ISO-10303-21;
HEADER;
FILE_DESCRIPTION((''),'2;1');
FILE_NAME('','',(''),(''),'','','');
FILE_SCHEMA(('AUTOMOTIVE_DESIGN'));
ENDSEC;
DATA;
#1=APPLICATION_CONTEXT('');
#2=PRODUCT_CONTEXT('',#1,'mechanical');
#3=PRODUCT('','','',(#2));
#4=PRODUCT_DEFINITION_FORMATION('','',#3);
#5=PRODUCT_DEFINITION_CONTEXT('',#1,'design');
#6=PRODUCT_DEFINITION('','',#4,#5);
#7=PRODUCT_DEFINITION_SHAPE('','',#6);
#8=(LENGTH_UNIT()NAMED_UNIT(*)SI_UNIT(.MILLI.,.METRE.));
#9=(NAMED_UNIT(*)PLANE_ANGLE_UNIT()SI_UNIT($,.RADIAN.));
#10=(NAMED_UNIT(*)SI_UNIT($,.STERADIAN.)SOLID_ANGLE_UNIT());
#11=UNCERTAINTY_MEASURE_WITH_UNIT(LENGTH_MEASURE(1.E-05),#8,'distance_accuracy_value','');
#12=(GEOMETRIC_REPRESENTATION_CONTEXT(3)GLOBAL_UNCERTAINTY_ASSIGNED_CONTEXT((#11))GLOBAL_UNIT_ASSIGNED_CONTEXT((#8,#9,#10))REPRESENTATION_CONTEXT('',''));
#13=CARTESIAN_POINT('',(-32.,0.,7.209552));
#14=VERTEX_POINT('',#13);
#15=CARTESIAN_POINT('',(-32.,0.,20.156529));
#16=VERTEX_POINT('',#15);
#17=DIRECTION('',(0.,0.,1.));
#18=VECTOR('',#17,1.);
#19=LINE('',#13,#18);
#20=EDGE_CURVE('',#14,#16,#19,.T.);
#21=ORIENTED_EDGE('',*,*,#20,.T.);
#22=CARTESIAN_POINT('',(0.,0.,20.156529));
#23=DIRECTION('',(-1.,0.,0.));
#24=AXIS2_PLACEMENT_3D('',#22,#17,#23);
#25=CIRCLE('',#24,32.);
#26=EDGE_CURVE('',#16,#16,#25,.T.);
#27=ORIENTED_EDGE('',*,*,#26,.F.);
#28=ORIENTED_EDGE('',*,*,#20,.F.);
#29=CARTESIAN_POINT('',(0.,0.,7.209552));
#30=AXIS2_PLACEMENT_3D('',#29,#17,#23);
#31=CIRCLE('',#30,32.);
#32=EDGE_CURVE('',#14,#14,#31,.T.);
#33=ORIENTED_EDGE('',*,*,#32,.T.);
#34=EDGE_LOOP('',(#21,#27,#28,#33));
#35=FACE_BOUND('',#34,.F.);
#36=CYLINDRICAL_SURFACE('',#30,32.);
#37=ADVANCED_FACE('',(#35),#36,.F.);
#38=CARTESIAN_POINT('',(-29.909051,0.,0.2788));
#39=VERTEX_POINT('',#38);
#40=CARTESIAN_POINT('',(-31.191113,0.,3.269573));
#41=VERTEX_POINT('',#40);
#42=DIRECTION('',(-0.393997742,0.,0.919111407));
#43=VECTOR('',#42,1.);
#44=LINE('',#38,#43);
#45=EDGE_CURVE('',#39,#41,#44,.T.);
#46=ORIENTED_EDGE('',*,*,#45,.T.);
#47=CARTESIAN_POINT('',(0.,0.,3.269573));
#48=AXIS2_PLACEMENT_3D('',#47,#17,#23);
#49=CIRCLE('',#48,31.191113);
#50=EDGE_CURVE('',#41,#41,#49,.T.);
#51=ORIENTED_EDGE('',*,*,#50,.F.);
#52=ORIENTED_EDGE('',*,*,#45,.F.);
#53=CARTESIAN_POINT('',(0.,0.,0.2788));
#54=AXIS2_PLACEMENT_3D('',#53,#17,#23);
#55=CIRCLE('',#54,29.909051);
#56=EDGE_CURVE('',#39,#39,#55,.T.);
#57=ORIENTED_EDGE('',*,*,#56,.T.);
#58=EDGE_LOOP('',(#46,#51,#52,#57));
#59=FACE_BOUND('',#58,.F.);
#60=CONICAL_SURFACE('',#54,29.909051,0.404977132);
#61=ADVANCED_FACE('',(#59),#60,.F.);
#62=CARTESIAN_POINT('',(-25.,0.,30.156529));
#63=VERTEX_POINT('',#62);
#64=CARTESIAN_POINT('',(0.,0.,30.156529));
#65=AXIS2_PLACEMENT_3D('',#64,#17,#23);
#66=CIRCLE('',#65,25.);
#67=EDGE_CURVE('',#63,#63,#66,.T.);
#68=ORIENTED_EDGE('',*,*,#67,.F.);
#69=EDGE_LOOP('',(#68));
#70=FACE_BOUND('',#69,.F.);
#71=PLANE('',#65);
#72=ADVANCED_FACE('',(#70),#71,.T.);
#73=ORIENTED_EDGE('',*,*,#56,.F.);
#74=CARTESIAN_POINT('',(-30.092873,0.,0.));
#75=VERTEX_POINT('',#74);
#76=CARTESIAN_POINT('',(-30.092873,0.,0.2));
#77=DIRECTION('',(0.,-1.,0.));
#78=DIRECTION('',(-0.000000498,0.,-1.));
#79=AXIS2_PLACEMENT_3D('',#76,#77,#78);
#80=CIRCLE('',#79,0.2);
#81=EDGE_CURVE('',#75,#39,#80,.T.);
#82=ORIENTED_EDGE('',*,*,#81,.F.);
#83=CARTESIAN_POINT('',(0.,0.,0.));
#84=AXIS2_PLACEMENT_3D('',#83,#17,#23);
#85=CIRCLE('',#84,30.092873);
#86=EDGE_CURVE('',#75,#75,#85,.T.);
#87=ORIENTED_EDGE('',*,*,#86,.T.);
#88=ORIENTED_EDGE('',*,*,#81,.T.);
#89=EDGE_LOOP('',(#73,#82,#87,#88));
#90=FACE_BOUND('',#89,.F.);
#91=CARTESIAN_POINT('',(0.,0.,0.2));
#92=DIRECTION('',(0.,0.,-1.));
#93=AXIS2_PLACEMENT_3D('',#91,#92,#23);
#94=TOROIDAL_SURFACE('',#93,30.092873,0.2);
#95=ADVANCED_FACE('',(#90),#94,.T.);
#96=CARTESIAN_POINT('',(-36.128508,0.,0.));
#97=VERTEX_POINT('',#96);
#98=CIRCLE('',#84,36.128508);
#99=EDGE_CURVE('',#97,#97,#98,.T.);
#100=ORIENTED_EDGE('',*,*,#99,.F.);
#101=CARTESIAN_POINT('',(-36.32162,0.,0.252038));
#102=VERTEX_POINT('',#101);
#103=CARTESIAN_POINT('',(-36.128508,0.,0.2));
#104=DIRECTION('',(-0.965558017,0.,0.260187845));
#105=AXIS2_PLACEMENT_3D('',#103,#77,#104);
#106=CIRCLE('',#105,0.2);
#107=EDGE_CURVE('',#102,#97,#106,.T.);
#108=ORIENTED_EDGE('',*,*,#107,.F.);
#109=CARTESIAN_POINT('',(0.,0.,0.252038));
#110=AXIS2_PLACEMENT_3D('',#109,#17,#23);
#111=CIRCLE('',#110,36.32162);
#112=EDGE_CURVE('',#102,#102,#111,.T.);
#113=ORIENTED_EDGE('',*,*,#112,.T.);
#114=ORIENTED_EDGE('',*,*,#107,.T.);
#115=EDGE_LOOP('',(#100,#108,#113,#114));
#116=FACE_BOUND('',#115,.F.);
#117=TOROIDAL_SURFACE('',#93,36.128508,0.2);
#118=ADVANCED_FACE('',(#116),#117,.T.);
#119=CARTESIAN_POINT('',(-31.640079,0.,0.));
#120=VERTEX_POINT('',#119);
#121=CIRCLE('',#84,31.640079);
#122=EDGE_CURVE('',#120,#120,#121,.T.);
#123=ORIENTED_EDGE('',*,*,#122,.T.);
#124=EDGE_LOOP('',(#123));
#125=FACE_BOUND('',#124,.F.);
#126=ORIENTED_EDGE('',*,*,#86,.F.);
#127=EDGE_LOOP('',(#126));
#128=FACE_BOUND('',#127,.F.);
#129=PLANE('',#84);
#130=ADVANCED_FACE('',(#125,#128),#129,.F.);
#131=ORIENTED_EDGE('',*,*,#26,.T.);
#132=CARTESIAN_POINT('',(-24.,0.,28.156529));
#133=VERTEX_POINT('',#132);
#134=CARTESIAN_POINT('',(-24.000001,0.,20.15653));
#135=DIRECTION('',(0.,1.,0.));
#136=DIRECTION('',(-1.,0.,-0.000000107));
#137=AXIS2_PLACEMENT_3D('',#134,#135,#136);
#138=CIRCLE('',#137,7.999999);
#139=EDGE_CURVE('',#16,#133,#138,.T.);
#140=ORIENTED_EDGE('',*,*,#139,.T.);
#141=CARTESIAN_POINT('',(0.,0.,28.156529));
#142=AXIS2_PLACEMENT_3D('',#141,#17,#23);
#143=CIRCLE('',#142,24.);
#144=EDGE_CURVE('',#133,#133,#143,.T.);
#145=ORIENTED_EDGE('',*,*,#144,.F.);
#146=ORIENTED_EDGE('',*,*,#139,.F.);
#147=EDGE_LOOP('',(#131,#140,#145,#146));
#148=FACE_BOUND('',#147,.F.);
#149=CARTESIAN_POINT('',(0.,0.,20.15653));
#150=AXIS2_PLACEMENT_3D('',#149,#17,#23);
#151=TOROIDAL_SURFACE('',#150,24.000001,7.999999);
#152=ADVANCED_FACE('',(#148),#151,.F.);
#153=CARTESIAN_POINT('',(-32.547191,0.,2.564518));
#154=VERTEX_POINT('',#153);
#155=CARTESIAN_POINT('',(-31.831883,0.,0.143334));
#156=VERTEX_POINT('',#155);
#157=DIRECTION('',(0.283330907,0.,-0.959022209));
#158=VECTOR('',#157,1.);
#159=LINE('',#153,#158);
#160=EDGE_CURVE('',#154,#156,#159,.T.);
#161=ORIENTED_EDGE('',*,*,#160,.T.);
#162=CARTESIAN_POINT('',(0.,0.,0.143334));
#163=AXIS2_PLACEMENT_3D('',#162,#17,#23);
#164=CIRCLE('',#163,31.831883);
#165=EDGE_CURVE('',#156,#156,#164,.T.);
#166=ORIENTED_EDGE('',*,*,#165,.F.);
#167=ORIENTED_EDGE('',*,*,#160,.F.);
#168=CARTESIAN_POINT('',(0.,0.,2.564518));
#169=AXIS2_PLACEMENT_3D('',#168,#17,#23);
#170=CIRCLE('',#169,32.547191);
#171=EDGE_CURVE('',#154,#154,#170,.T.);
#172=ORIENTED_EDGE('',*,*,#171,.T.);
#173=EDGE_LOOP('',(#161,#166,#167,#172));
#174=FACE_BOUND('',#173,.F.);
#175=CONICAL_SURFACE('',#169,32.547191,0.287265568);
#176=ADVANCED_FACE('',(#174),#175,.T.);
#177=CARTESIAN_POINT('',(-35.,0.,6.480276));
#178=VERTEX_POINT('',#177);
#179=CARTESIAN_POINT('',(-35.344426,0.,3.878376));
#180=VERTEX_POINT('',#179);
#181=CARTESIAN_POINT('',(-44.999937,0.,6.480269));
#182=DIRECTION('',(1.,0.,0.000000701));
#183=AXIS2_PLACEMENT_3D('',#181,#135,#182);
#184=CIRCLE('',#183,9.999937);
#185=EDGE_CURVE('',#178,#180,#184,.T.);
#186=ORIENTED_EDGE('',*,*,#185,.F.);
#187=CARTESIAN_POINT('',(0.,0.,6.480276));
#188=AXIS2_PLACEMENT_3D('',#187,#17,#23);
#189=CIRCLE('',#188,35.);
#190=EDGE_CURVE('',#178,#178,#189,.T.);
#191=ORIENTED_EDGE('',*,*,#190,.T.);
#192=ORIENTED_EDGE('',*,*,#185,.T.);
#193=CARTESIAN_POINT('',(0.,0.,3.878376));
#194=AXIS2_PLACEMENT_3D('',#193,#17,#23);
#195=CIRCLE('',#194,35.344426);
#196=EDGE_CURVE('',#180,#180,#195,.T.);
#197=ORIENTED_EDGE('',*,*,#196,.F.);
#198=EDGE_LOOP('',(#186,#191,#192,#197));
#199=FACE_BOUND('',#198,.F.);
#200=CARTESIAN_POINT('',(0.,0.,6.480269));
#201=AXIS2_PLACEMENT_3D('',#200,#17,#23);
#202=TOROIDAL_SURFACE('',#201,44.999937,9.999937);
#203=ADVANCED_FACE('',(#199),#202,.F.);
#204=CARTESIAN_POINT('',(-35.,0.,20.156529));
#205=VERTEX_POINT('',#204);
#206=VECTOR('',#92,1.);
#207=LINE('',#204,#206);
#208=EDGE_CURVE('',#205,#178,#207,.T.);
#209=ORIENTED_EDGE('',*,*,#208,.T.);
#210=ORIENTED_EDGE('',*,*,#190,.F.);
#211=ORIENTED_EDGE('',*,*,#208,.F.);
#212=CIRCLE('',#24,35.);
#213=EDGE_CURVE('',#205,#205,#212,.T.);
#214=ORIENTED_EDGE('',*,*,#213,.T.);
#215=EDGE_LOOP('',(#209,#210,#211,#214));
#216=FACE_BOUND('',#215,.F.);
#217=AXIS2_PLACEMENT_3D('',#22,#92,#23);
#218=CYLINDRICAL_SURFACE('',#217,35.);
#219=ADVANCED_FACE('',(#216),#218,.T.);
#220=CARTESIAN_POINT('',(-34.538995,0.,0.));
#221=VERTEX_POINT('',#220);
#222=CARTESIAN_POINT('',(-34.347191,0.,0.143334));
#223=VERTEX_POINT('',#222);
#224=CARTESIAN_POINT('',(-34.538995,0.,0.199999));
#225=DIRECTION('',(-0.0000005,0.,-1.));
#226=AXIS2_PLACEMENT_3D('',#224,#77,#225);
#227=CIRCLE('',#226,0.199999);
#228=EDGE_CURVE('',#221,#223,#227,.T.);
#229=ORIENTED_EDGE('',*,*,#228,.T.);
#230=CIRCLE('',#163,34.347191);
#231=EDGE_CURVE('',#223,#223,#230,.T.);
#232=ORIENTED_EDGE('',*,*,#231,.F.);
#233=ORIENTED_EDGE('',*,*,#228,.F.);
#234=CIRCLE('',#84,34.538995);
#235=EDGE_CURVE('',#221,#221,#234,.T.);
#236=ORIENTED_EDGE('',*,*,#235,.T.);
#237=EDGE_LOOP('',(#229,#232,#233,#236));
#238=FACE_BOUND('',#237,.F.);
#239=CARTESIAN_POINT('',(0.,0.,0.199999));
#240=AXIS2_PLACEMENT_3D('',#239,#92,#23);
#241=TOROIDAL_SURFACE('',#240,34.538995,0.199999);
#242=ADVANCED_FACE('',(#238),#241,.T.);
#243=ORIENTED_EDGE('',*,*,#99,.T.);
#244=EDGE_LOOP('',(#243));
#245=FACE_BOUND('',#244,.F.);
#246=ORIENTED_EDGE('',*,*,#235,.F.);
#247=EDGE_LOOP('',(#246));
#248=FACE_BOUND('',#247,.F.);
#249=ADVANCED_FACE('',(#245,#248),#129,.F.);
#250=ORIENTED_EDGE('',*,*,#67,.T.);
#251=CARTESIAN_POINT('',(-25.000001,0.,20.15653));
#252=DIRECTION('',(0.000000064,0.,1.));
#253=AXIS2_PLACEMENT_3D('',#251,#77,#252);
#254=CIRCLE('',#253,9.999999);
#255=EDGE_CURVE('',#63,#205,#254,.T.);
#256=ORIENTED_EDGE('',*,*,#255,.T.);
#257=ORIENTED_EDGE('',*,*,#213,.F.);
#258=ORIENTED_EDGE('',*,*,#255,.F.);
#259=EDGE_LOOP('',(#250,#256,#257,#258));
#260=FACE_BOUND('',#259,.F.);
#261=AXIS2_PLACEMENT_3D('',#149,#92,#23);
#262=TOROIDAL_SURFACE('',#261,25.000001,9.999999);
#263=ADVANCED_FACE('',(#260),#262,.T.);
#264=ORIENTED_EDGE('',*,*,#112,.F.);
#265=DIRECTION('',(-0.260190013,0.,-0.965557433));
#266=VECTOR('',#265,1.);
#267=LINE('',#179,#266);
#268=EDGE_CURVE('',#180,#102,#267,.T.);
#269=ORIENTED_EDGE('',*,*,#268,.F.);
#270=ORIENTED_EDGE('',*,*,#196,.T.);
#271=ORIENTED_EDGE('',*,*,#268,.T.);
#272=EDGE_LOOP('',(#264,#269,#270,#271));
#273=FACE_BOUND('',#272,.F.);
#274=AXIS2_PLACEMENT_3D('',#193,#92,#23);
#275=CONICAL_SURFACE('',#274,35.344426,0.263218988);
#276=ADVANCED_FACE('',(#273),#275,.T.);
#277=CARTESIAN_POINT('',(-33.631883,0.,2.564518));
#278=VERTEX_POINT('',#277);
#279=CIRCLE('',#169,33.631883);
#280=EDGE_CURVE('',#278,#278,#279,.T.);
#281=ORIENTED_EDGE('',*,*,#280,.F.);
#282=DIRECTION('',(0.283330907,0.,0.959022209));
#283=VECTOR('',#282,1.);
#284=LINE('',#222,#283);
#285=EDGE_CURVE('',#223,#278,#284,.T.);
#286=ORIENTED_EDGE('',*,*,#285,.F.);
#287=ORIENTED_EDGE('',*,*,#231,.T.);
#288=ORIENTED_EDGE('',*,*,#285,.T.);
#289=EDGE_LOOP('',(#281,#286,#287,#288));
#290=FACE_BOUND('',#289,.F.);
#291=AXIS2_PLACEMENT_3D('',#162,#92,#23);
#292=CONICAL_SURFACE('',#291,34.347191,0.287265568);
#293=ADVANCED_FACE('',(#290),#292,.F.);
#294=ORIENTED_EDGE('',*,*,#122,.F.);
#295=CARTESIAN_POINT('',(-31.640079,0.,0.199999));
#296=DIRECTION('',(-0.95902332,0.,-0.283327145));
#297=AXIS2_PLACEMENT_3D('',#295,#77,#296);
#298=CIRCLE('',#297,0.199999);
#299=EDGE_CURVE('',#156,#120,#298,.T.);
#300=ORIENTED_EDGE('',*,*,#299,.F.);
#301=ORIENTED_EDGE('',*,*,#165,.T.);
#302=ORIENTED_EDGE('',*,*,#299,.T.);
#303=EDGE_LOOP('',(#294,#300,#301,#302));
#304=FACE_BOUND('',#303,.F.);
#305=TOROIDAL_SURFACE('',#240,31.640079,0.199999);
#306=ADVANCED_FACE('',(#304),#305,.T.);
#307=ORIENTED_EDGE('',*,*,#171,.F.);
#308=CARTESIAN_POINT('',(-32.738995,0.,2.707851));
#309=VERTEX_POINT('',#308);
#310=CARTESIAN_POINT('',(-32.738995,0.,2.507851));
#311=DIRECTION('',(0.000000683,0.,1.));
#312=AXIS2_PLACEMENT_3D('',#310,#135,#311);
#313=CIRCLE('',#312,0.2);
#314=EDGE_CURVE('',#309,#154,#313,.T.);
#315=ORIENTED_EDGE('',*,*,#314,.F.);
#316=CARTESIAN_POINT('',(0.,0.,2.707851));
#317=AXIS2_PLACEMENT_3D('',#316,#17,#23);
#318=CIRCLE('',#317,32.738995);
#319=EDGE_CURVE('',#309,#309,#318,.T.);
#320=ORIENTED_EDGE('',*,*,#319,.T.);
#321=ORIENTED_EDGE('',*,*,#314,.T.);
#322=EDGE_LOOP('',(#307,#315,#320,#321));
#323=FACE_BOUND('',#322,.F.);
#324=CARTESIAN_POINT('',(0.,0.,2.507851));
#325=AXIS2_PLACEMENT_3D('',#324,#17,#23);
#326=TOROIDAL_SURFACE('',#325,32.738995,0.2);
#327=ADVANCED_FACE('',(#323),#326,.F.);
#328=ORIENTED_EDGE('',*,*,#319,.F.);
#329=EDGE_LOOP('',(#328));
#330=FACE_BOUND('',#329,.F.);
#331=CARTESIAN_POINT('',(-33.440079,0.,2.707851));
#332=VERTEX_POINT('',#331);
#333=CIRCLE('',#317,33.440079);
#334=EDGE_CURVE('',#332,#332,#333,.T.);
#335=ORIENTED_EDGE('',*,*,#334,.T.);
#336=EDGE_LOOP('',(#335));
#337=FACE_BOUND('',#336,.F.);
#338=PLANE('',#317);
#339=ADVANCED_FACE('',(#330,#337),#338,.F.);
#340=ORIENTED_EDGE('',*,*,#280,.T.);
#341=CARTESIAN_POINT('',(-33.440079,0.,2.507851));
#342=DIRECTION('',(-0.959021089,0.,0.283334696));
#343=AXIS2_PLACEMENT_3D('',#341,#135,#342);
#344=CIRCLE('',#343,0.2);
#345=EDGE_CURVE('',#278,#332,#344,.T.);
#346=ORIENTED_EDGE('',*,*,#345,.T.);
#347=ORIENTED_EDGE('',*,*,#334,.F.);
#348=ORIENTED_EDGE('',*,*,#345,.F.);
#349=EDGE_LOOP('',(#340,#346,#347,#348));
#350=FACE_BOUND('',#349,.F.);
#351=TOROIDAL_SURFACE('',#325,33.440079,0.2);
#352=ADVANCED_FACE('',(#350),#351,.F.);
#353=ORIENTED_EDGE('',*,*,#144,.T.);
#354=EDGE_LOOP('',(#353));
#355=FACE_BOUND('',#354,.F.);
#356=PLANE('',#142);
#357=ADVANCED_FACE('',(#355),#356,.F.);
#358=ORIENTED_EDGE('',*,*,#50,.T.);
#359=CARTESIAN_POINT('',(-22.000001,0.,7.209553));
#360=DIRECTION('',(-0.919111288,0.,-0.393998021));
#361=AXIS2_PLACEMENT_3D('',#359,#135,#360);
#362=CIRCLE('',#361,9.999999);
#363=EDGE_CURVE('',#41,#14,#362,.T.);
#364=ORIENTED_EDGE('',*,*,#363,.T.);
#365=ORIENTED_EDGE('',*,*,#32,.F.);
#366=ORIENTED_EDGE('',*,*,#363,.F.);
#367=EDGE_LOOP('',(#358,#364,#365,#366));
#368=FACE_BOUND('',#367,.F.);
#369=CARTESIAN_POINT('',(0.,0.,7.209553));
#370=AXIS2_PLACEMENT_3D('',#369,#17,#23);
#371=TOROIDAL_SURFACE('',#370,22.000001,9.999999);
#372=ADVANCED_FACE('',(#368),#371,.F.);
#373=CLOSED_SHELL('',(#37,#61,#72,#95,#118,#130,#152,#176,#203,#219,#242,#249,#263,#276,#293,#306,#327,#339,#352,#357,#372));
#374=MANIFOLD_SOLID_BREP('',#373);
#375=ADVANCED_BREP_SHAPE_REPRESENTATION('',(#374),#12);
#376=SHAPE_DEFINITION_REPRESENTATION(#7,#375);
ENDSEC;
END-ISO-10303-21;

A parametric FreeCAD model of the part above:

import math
import FreeCAD as App
import Part
import Sketcher

V = App.Vector
Q = App.Units.Quantity

doc = App.newDocument("Part")
params = doc.addObject("Spreadsheet::Sheet", "Params")
for row, (alias, value) in enumerate([
    ("sketch1_radius", "9.999999 mm"),
    ("sketch1_radius2", "9.999999 mm"),
    ("sketch1_radius3", "7.999999 mm"),
    ("sketch1_radius4", "0.2 mm"),
    ("sketch1_radius5", "0.199999 mm"),
    ("revolution_angle", "360 deg"),
], start=1):
    params.set(f"A{row}", alias)
    params.set(f"B{row}", "=" + value)
    params.setAlias(f"B{row}", alias)

body = doc.addObject("PartDesign::Body", "Body")

# Sketch on XZ plane
sketch1 = doc.addObject("Sketcher::SketchObject", "Sketch")
body.addObject(sketch1)
sketch1.AttachmentSupport = (doc.XZ_Plane, [""])
sketch1.MapMode = "FlatFace"
sketch1.addGeometry([
    Part.LineSegment(V(-24, 28.156529, 0), V(0, 28.156529, 0)),  # 0
    Part.LineSegment(V(0, 28.156529, 0), V(0, 30.156529, 0)),  # 1
    Part.LineSegment(V(0, 30.156529, 0), V(-25, 30.156529, 0)),  # 2
    Part.ArcOfCircle(Part.Circle(V(-25.000001, 20.15653, 0), V(0, 0, 1), 9.999999), math.radians(89.999996), math.radians(180.000004)),  # 3
    Part.LineSegment(V(-35, 20.156529, 0), V(-35, 6.480276, 0)),  # 4
    Part.ArcOfCircle(Part.Circle(V(-44.999937, 6.480269, 0), V(0, 0, 1), 9.999937), math.radians(-15.081393), math.radians(0.00004)),  # 5
    Part.LineSegment(V(-35.344426, 3.878376, 0), V(-36.32162, 0.252038, 0)),  # 6
    Part.ArcOfCircle(Part.Circle(V(-36.128508, 0.2, 0), V(0, 0, 1), 0.2), math.radians(164.918792), math.radians(270.000019)),  # 7
    Part.LineSegment(V(-36.128508, 0, 0), V(-34.538995, 0, 0)),  # 8
    Part.ArcOfCircle(Part.Circle(V(-34.538995, 0.199999, 0), V(0, 0, 1), 0.199999), math.radians(-90.000029), math.radians(-16.45888)),  # 9
    Part.LineSegment(V(-34.347191, 0.143334, 0), V(-33.631883, 2.564518, 0)),  # 10
    Part.ArcOfCircle(Part.Circle(V(-33.440079, 2.507851, 0), V(0, 0, 1), 0.2), math.radians(90.000039), math.radians(163.540669)),  # 11
    Part.LineSegment(V(-33.440079, 2.707851, 0), V(-32.738995, 2.707851, 0)),  # 12
    Part.ArcOfCircle(Part.Circle(V(-32.738995, 2.507851, 0), V(0, 0, 1), 0.2), math.radians(16.459331), math.radians(89.999961)),  # 13
    Part.LineSegment(V(-32.547191, 2.564518, 0), V(-31.831883, 0.143334, 0)),  # 14
    Part.ArcOfCircle(Part.Circle(V(-31.640079, 0.199999, 0), V(0, 0, 1), 0.199999), math.radians(-163.54112), math.radians(-89.999971)),  # 15
    Part.LineSegment(V(-31.640079, 0, 0), V(-30.092873, 0, 0)),  # 16
    Part.ArcOfCircle(Part.Circle(V(-30.092873, 0.2, 0), V(0, 0, 1), 0.2), math.radians(-90.000029), math.radians(23.203675)),  # 17
    Part.LineSegment(V(-29.909051, 0.2788, 0), V(-31.191113, 3.269573, 0)),  # 18
    Part.ArcOfCircle(Part.Circle(V(-22.000001, 7.209553, 0), V(0, 0, 1), 9.999999), math.radians(-179.999996), math.radians(-156.796502)),  # 19
    Part.LineSegment(V(-32, 7.209552, 0), V(-32, 20.156529, 0)),  # 20
    Part.ArcOfCircle(Part.Circle(V(-24.000001, 20.15653, 0), V(0, 0, 1), 7.999999), math.radians(89.999994), math.radians(180.000006)),  # 21
], False)
sketch1.addConstraint([
    Sketcher.Constraint("Coincident", 0, 2, 1, 1),
    Sketcher.Constraint("Coincident", 1, 2, 2, 1),
    Sketcher.Constraint("Coincident", 2, 2, 3, 1),
    Sketcher.Constraint("Coincident", 3, 2, 4, 1),
    Sketcher.Constraint("Coincident", 4, 2, 5, 2),
    Sketcher.Constraint("Coincident", 5, 1, 6, 1),
    Sketcher.Constraint("Coincident", 6, 2, 7, 1),
    Sketcher.Constraint("Coincident", 7, 2, 8, 1),
    Sketcher.Constraint("Coincident", 8, 2, 9, 1),
    Sketcher.Constraint("Coincident", 9, 2, 10, 1),
    Sketcher.Constraint("Coincident", 10, 2, 11, 2),
    Sketcher.Constraint("Coincident", 11, 1, 12, 1),
    Sketcher.Constraint("Coincident", 12, 2, 13, 2),
    Sketcher.Constraint("Coincident", 13, 1, 14, 1),
    Sketcher.Constraint("Coincident", 14, 2, 15, 1),
    Sketcher.Constraint("Coincident", 15, 2, 16, 1),
    Sketcher.Constraint("Coincident", 16, 2, 17, 1),
    Sketcher.Constraint("Coincident", 17, 2, 18, 1),
    Sketcher.Constraint("Coincident", 18, 2, 19, 2),
    Sketcher.Constraint("Coincident", 19, 1, 20, 1),
    Sketcher.Constraint("Coincident", 20, 2, 21, 2),
    Sketcher.Constraint("Coincident", 21, 1, 0, 1),
    Sketcher.Constraint("Horizontal", 0),
    Sketcher.Constraint("Vertical", 1),
    Sketcher.Constraint("Horizontal", 2),
    Sketcher.Constraint("Vertical", 4),
    Sketcher.Constraint("Horizontal", 8),
    Sketcher.Constraint("Horizontal", 12),
    Sketcher.Constraint("Horizontal", 16),
    Sketcher.Constraint("Vertical", 20),
    Sketcher.Constraint("PointOnObject", 0, 2, -2),
    Sketcher.Constraint("PointOnObject", 7, 2, -1),
    Sketcher.Constraint("PointOnObject", 15, 2, -1),
    Sketcher.Constraint("Radius", 3, Q("9.999999 mm")),
    Sketcher.Constraint("Radius", 19, Q("9.999999 mm")),
    Sketcher.Constraint("Radius", 21, Q("7.999999 mm")),
    Sketcher.Constraint("Radius", 7, Q("0.2 mm")),
    Sketcher.Constraint("Radius", 9, Q("0.199999 mm")),
    Sketcher.Constraint("Radius", 11, Q("0.2 mm")),
    Sketcher.Constraint("Radius", 13, Q("0.2 mm")),
    Sketcher.Constraint("Radius", 15, Q("0.199999 mm")),
    Sketcher.Constraint("Radius", 17, Q("0.2 mm")),
    Sketcher.Constraint("DistanceX", 0, 1, 0, 2, Q("24 mm")),
    Sketcher.Constraint("DistanceX", 2, 2, 2, 1, Q("25 mm")),
    Sketcher.Constraint("DistanceY", 1, 1, 1, 2, Q("2 mm")),
    Sketcher.Constraint("DistanceX", 3, 3, -1, 1, Q("25.000001 mm")),
    Sketcher.Constraint("DistanceX", 19, 3, -1, 1, Q("22.000001 mm")),
    Sketcher.Constraint("DistanceY", 3, 2, 2, 2, Q("10 mm")),
    Sketcher.Constraint("DistanceY", 20, 2, 2, 2, Q("10 mm")),
    Sketcher.Constraint("DistanceX", 9, 3, 13, 3, Q("1.8 mm")),
    Sketcher.Constraint("DistanceX", 11, 3, 15, 3, Q("1.8 mm")),
    Sketcher.Constraint("Radius", 5, Q("9.999937 mm")),
    Sketcher.Constraint("DistanceY", -1, 1, 17, 2, Q("0.2788 mm")),
    Sketcher.Constraint("DistanceY", 13, 3, 19, 3, Q("4.701702 mm")),
    Sketcher.Constraint("DistanceY", 5, 1, 4, 2, Q("2.6019 mm")),
    Sketcher.Constraint("DistanceY", 12, 2, 19, 1, Q("4.501701 mm")),
    Sketcher.Constraint("Distance", 10, Q("2.524638 mm")),
    Sketcher.Constraint("Distance", 14, Q("2.524638 mm")),
    Sketcher.Constraint("DistanceX", 8, 1, 8, 2, Q("1.589513 mm")),
    Sketcher.Constraint("DistanceX", 12, 1, 12, 2, Q("0.701084 mm")),
    Sketcher.Constraint("DistanceX", 16, 1, 16, 2, Q("1.547206 mm")),
    Sketcher.Constraint("DistanceY", 4, 2, 4, 1, Q("13.676253 mm")),
    Sketcher.Constraint("DistanceY", 20, 1, 20, 2, Q("12.946977 mm")),
    Sketcher.Constraint("DistanceY", -1, 1, 3, 3, Q("20.15653 mm")),
    Sketcher.Constraint("DistanceY", -1, 1, 5, 3, Q("6.480269 mm")),
    Sketcher.Constraint("DistanceX", 7, 3, -1, 1, Q("36.128508 mm")),
    Sketcher.Constraint("DistanceX", 11, 3, -1, 1, Q("33.440079 mm")),
    Sketcher.Constraint("DistanceX", 6, 2, -1, 1, Q("36.32162 mm")),
    Sketcher.Constraint("DistanceX", 9, 2, -1, 1, Q("34.347191 mm")),
    Sketcher.Constraint("DistanceY", -1, 1, 10, 2, Q("2.564518 mm")),
    Sketcher.Constraint("DistanceX", 11, 1, -1, 1, Q("33.440079 mm")),
    Sketcher.Constraint("DistanceX", 13, 1, -1, 1, Q("32.547191 mm")),
    Sketcher.Constraint("DistanceX", 15, 2, -1, 1, Q("31.640079 mm")),
    Sketcher.Constraint("DistanceX", 17, 2, -1, 1, Q("29.909051 mm")),
    Sketcher.Constraint("DistanceX", 7, 2, 11, 3, Q("2.688429 mm")),
    Sketcher.Constraint("DistanceX", 13, 1, 18, 2, Q("1.356078 mm")),
])
sketch1.setExpression("Constraints[33]", "Params.sketch1_radius")
sketch1.setExpression("Constraints[34]", "Params.sketch1_radius2")
sketch1.setExpression("Constraints[35]", "Params.sketch1_radius3")
sketch1.setExpression("Constraints[36]", "Params.sketch1_radius4")
sketch1.setExpression("Constraints[37]", "Params.sketch1_radius5")
revolution = doc.addObject("PartDesign::Revolution", "Revolution")
body.addObject(revolution)
revolution.Profile = sketch1
revolution.ReferenceAxis = (sketch1, ["V_Axis"])
revolution.setExpression("Angle", "Params.revolution_angle")

doc.recompute()
